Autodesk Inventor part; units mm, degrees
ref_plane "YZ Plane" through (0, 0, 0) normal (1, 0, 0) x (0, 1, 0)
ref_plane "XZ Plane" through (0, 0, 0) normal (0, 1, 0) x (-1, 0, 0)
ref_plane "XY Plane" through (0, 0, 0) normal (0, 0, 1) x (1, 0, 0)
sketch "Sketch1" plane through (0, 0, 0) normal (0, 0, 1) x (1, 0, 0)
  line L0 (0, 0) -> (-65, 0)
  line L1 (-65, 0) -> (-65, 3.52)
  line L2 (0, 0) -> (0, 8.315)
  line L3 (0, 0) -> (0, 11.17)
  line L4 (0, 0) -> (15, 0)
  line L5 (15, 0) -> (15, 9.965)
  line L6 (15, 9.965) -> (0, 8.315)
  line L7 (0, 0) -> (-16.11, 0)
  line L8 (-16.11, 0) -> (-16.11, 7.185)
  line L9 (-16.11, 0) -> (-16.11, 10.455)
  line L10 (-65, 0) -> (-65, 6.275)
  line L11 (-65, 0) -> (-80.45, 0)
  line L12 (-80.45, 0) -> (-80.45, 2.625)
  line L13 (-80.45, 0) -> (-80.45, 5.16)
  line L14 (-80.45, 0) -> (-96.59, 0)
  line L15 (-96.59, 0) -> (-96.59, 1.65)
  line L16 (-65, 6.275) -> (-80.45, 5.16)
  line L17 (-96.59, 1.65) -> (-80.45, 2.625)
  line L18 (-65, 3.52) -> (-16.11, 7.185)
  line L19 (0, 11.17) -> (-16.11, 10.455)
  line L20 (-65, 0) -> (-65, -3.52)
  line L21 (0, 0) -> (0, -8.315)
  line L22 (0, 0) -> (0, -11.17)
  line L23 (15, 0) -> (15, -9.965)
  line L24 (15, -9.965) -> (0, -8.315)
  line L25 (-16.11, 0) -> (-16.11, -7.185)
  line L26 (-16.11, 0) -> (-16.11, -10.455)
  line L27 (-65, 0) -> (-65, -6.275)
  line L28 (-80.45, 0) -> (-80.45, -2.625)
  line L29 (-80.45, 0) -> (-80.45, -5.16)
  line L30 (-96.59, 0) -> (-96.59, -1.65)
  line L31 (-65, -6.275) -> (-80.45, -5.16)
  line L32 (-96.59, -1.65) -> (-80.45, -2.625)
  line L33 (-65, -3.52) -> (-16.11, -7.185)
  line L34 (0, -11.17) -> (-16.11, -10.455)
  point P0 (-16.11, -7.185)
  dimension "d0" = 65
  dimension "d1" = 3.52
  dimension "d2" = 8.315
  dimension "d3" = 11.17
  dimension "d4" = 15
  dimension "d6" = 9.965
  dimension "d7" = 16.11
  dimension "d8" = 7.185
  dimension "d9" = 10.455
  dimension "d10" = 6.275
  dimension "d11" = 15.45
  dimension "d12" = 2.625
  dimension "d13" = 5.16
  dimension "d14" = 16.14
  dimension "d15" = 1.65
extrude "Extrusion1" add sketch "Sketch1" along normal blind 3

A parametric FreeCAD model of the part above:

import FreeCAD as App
import Part
import Sketcher

doc = App.newDocument("Part")
params = doc.addObject("Spreadsheet::Sheet", "Params")
for row, (alias, value) in enumerate([
    ("pad1_length", "3 mm"),
], start=1):
    params.set(f"A{row}", alias)
    params.set(f"B{row}", "=" + value)
    params.setAlias(f"B{row}", alias)

body = doc.addObject("PartDesign::Body", "Body")

# Sketch on XY plane
sketch1 = body.newObject("Sketcher::SketchObject", "Sketch")
sketch1.AttachmentSupport = (doc.getObject("XY_Plane"), [""])
sketch1.MapMode = "FlatFace"
sketch1.addGeometry([
    Part.LineSegment(App.Vector(0, -11.2, 0), App.Vector(0, -8.3, 0)),  # 0
    Part.LineSegment(App.Vector(0, -8.3, 0), App.Vector(15, -10, 0)),  # 1
    Part.LineSegment(App.Vector(15, -10, 0), App.Vector(15, 10, 0)),  # 2
    Part.LineSegment(App.Vector(15, 10, 0), App.Vector(0, 8.3, 0)),  # 3
    Part.LineSegment(App.Vector(0, 8.3, 0), App.Vector(0, 11.2, 0)),  # 4
    Part.LineSegment(App.Vector(0, 11.2, 0), App.Vector(-16.1, 10.5, 0)),  # 5
    Part.LineSegment(App.Vector(-16.1, 10.5, 0), App.Vector(-16.1, 7.2, 0)),  # 6
    Part.LineSegment(App.Vector(-16.1, 7.2, 0), App.Vector(-65, 3.5, 0)),  # 7
    Part.LineSegment(App.Vector(-65, 3.5, 0), App.Vector(-65, 6.3, 0)),  # 8
    Part.LineSegment(App.Vector(-65, 6.3, 0), App.Vector(-80.5, 5.2, 0)),  # 9
    Part.LineSegment(App.Vector(-80.5, 5.2, 0), App.Vector(-80.5, 2.6, 0)),  # 10
    Part.LineSegment(App.Vector(-80.5, 2.6, 0), App.Vector(-96.6, 1.6, 0)),  # 11
    Part.LineSegment(App.Vector(-96.6, 1.6, 0), App.Vector(-96.6, -1.6, 0)),  # 12
    Part.LineSegment(App.Vector(-96.6, -1.6, 0), App.Vector(-80.5, -2.6, 0)),  # 13
    Part.LineSegment(App.Vector(-80.5, -2.6, 0), App.Vector(-80.5, -5.2, 0)),  # 14
    Part.LineSegment(App.Vector(-80.5, -5.2, 0), App.Vector(-65, -6.3, 0)),  # 15
    Part.LineSegment(App.Vector(-65, -6.3, 0), App.Vector(-65, -3.5, 0)),  # 16
    Part.LineSegment(App.Vector(-65, -3.5, 0), App.Vector(-16.1, -7.2, 0)),  # 17
    Part.LineSegment(App.Vector(-16.1, -7.2, 0), App.Vector(-16.1, -10.5, 0)),  # 18
    Part.LineSegment(App.Vector(-16.1, -10.5, 0), App.Vector(0, -11.2, 0)),  # 19
], False)
sketch1.addConstraint([
    Sketcher.Constraint("Coincident", 0, 2, 1, 1),
    Sketcher.Constraint("Coincident", 1, 2, 2, 1),
    Sketcher.Constraint("Coincident", 2, 2, 3, 1),
    Sketcher.Constraint("Coincident", 3, 2, 4, 1),
    Sketcher.Constraint("Coincident", 4, 2, 5, 1),
    Sketcher.Constraint("Coincident", 5, 2, 6, 1),
    Sketcher.Constraint("Coincident", 6, 2, 7, 1),
    Sketcher.Constraint("Coincident", 7, 2, 8, 1),
    Sketcher.Constraint("Coincident", 8, 2, 9, 1),
    Sketcher.Constraint("Coincident", 9, 2, 10, 1),
    Sketcher.Constraint("Coincident", 10, 2, 11, 1),
    Sketcher.Constraint("Coincident", 11, 2, 12, 1),
    Sketcher.Constraint("Coincident", 12, 2, 13, 1),
    Sketcher.Constraint("Coincident", 13, 2, 14, 1),
    Sketcher.Constraint("Coincident", 14, 2, 15, 1),
    Sketcher.Constraint("Coincident", 15, 2, 16, 1),
    Sketcher.Constraint("Coincident", 16, 2, 17, 1),
    Sketcher.Constraint("Coincident", 17, 2, 18, 1),
    Sketcher.Constraint("Coincident", 18, 2, 19, 1),
    Sketcher.Constraint("Coincident", 19, 2, 0, 1),
    Sketcher.Constraint("Vertical", 0),
    Sketcher.Constraint("Vertical", 2),
    Sketcher.Constraint("Vertical", 4),
    Sketcher.Constraint("Vertical", 6),
    Sketcher.Constraint("Vertical", 8),
    Sketcher.Constraint("Vertical", 10),
    Sketcher.Constraint("Vertical", 12),
    Sketcher.Constraint("Vertical", 14),
    Sketcher.Constraint("Vertical", 16),
    Sketcher.Constraint("Vertical", 18),
    Sketcher.Constraint("Symmetric", 0, 2, 3, 2, -1, 1),
    Sketcher.Constraint("Symmetric", 10, 2, 13, 2, -1),
    Sketcher.Constraint("Symmetric", 8, 2, 15, 2, -1),
    Sketcher.Constraint("Symmetric", 6, 2, 17, 2, -1),
    Sketcher.Constraint("Symmetric", 4, 2, 19, 2, -1),
    Sketcher.Constraint("Equal", 10, 14),
    Sketcher.Constraint("Equal", 8, 16),
    Sketcher.Constraint("Equal", 6, 18),
    Sketcher.Constraint("Equal", 1, 3),
    Sketcher.Constraint("Equal", 11, 13),
    Sketcher.Constraint("DistanceX", -1, 1, 1, 2, 15.0),
    Sketcher.Constraint("DistanceX", 7, 2, -1, 1, 65.0),
    Sketcher.Constraint("DistanceY", -1, 1, 4, 2, 11.17),
    Sketcher.Constraint("DistanceX", 5, 2, -1, 1, 16.11),
    Sketcher.Constraint("DistanceY", -1, 1, 7, 2, 3.52),
    Sketcher.Constraint("DistanceY", -1, 1, 9, 2, 5.16),
    Sketcher.Constraint("DistanceY", -1, 1, 11, 2, 1.65),
    Sketcher.Constraint("DistanceY", 1, 2, 0, 2, 1.65),
    Sketcher.Constraint("DistanceX", 9, 2, 8, 2, 15.45),
    Sketcher.Constraint("DistanceX", 11, 2, 10, 2, 16.14),
    Sketcher.Constraint("DistanceY", 0, 2, -1, 1, 8.315),
    Sketcher.Constraint("DistanceY", -1, 1, 5, 2, 10.455),
    Sketcher.Constraint("DistanceY", -1, 1, 6, 2, 7.185),
    Sketcher.Constraint("DistanceY", -1, 1, 8, 2, 6.275),
    Sketcher.Constraint("DistanceY", -1, 1, 10, 2, 2.625),
])
pad1 = body.newObject("PartDesign::Pad", "Pad")
pad1.Profile = sketch1
pad1.setExpression("Length", "Params.pad1_length")

doc.recompute()
